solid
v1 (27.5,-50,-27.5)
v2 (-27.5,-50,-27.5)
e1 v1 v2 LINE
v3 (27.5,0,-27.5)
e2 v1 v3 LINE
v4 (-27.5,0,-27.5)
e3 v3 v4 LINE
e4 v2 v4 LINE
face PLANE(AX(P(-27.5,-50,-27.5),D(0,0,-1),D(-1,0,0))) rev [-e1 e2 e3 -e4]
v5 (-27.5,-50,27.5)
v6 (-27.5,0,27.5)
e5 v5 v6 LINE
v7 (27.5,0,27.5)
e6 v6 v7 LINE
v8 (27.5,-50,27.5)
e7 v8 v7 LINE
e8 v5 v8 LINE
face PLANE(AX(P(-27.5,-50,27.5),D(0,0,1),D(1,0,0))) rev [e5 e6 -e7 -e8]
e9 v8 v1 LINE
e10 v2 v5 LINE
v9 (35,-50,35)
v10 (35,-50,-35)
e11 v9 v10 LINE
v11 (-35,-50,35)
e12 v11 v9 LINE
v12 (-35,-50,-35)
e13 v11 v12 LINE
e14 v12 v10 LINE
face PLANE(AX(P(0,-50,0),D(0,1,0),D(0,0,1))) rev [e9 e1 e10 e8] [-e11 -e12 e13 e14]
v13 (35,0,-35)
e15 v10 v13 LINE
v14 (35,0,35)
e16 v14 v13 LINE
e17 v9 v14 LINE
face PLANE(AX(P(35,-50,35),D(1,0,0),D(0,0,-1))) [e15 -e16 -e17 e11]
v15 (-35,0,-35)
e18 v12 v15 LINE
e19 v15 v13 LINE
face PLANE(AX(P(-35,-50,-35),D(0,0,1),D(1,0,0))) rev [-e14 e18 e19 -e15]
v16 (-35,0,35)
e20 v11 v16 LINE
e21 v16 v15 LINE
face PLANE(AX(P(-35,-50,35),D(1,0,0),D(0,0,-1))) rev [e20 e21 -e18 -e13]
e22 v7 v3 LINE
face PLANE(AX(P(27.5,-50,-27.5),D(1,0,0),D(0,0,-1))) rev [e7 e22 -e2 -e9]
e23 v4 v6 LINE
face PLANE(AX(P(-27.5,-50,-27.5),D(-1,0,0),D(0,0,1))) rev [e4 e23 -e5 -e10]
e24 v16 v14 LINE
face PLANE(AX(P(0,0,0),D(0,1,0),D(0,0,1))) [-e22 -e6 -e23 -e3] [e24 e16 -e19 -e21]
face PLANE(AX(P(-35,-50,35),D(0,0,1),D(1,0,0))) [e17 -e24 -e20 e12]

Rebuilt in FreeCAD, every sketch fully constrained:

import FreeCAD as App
import Part
import Sketcher

V = App.Vector


def add_polygon(sketch, points):
    """Adds a closed chain of lines whose ends are joined by coincident constraints."""
    first, n = sketch.GeometryCount, len(points)
    for a, b in zip(points, points[1:] + points[:1]):
        sketch.addGeometry(Part.LineSegment(App.Vector(*a, 0), App.Vector(*b, 0)), False)
    for i in range(n):
        sketch.addConstraint(Sketcher.Constraint("Coincident", first + i, 2, first + (i + 1) % n, 1))

doc = App.newDocument("Part")
body = doc.addObject("PartDesign::Body", "Body")

# Sketch on XZ plane
sketch1 = doc.addObject("Sketcher::SketchObject", "Sketch")
body.addObject(sketch1)
sketch1.AttachmentSupport = (doc.XZ_Plane, [""])
sketch1.MapMode = "FlatFace"
add_polygon(sketch1, [(-35, -35), (-35, 35), (35, 35), (35, -35)])  # lines 0-3
sketch1.addConstraint([
    Sketcher.Constraint("Vertical", 0),
    Sketcher.Constraint("Horizontal", 1),
    Sketcher.Constraint("Vertical", 2),
    Sketcher.Constraint("Horizontal", 3),
    Sketcher.Constraint("Symmetric", 0, 2, 2, 2, -1, 1),
    Sketcher.Constraint("Equal", 3, 0),
    Sketcher.Constraint("DistanceX", 1, 1, 1, 2, 70.0),
])
pad1 = doc.addObject("PartDesign::Pad", "Pad")
body.addObject(pad1)
pad1.Profile = sketch1
pad1.Length = 50

# Sketch on XZ plane
sketch2 = doc.addObject("Sketcher::SketchObject", "Sketch001")
body.addObject(sketch2)
sketch2.AttachmentSupport = (doc.XZ_Plane, [""])
sketch2.MapMode = "FlatFace"
add_polygon(sketch2, [(-28, -28), (-28, 28), (28, 28), (28, -28)])  # lines 0-3
sketch2.addConstraint([
    Sketcher.Constraint("Vertical", 0),
    Sketcher.Constraint("Horizontal", 1),
    Sketcher.Constraint("Vertical", 2),
    Sketcher.Constraint("Horizontal", 3),
    Sketcher.Constraint("Symmetric", 0, 2, 2, 2, -1, 1),
    Sketcher.Constraint("Equal", 3, 0),
    Sketcher.Constraint("DistanceX", 1, 1, 1, 2, 55.0),
])
pocket1 = doc.addObject("PartDesign::Pocket", "Pocket")
body.addObject(pocket1)
pocket1.Profile = sketch2
pocket1.Length = 50
pocket1.Reversed = True

doc.recompute()
